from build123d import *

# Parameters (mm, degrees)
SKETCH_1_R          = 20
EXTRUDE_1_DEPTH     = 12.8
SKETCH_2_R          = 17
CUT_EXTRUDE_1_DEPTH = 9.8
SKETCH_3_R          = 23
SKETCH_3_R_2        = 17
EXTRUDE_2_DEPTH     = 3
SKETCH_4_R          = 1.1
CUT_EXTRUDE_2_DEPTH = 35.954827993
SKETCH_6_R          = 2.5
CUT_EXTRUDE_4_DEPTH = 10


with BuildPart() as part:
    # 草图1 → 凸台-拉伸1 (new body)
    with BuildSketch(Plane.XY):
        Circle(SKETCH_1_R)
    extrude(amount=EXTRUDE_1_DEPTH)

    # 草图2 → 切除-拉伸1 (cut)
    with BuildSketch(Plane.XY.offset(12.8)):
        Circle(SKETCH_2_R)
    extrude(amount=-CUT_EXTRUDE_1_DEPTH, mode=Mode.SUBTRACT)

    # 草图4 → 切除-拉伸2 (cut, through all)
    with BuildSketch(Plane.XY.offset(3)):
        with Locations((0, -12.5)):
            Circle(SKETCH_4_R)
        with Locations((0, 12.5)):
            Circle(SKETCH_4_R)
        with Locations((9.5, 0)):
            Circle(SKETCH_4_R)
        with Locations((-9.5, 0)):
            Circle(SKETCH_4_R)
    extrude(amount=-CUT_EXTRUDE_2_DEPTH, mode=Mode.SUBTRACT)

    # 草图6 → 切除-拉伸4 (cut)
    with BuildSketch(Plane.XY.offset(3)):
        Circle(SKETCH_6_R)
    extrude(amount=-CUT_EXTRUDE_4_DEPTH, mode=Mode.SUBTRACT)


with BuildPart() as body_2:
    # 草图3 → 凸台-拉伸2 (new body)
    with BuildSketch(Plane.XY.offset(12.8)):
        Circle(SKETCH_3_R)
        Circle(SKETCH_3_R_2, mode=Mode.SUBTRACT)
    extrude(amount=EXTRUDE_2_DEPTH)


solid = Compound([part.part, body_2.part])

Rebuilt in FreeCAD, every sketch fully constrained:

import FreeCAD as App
import Part
import Sketcher

V = App.Vector
Q = App.Units.Quantity

doc = App.newDocument("Part")
body = doc.addObject("PartDesign::Body", "Body")

# Sketch on XY plane
sketch1 = body.newObject("Sketcher::SketchObject", "Sketch")
sketch1.AttachmentSupport = (doc.getObject("XY_Plane"), [""])
sketch1.MapMode = "FlatFace"
sketch1.addGeometry(Part.Circle(V(0, 0, 0), V(0, 0, 1), 20), False)
sketch1.addConstraint(Sketcher.Constraint("Coincident", 0, 3, -1, 1))
sketch1.addConstraint(Sketcher.Constraint("Diameter", 0, Q("40 mm")))
pad1 = body.newObject("PartDesign::Pad", "Pad")
pad1.Profile = sketch1
pad1.Length = 12.8

# Sketch on XY plane
sketch2 = body.newObject("Sketcher::SketchObject", "Sketch001")
sketch2.AttachmentSupport = (doc.getObject("XY_Plane"), [""])
sketch2.MapMode = "FlatFace"
sketch2.AttachmentOffset = App.Placement(V(0, 0, 12.8), App.Rotation())
sketch2.addGeometry(Part.Circle(V(0, 0, 0), V(0, 0, 1), 17), False)
sketch2.addConstraint(Sketcher.Constraint("Coincident", 0, 3, -1, 1))
sketch2.addConstraint(Sketcher.Constraint("Diameter", 0, Q("34 mm")))
pocket1 = body.newObject("PartDesign::Pocket", "Pocket")
pocket1.Profile = sketch2
pocket1.Length = 9.8

# Sketch on XY plane
sketch3 = body.newObject("Sketcher::SketchObject", "Sketch002")
sketch3.AttachmentSupport = (doc.getObject("XY_Plane"), [""])
sketch3.MapMode = "FlatFace"
sketch3.AttachmentOffset = App.Placement(V(0, 0, 3), App.Rotation())
sketch3.addGeometry(Part.Circle(V(0, -12.5, 0), V(0, 0, 1), 1.1), False)
sketch3.addGeometry(Part.Circle(V(0, 12.5, 0), V(0, 0, 1), 1.1), False)
sketch3.addGeometry(Part.Circle(V(9.5, 0, 0), V(0, 0, 1), 1.1), False)
sketch3.addGeometry(Part.Circle(V(-9.5, 0, 0), V(0, 0, 1), 1.1), False)
sketch3.addConstraint(Sketcher.Constraint("Equal", 0, 1))
sketch3.addConstraint(Sketcher.Constraint("Equal", 1, 2))
sketch3.addConstraint(Sketcher.Constraint("Equal", 2, 3))
sketch3.addConstraint(Sketcher.Constraint("Symmetric", 0, 3, 1, 3, -1, 1))
sketch3.addConstraint(Sketcher.Constraint("Symmetric", 2, 3, 3, 3, -1, 1))
sketch3.addConstraint(Sketcher.Constraint("PointOnObject", 0, 3, -2))
sketch3.addConstraint(Sketcher.Constraint("PointOnObject", 2, 3, -1))
sketch3.addConstraint(Sketcher.Constraint("Diameter", 0, Q("2.2 mm")))
sketch3.addConstraint(Sketcher.Constraint("DistanceY", 0, 3, 1, 3, Q("25 mm")))
sketch3.addConstraint(Sketcher.Constraint("DistanceX", 3, 3, 2, 3, Q("19 mm")))
pocket2 = body.newObject("PartDesign::Pocket", "Pocket001")
pocket2.Profile = sketch3
pocket2.Type = "ThroughAll"

# Sketch on XY plane
sketch4 = body.newObject("Sketcher::SketchObject", "Sketch003")
sketch4.AttachmentSupport = (doc.getObject("XY_Plane"), [""])
sketch4.MapMode = "FlatFace"
sketch4.AttachmentOffset = App.Placement(V(0, 0, 3), App.Rotation())
sketch4.addGeometry(Part.Circle(V(0, 0, 0), V(0, 0, 1), 2.5), False)
sketch4.addConstraint(Sketcher.Constraint("Coincident", 0, 3, -1, 1))
sketch4.addConstraint(Sketcher.Constraint("Diameter", 0, Q("5 mm")))
pocket3 = body.newObject("PartDesign::Pocket", "Pocket002")
pocket3.Profile = sketch4
pocket3.Length = 10
body2 = doc.addObject("PartDesign::Body", "Body001")

# Sketch on XY plane
sketch5 = body2.newObject("Sketcher::SketchObject", "Sketch004")
sketch5.AttachmentSupport = (doc.getObject("XY_Plane001"), [""])
sketch5.MapMode = "FlatFace"
sketch5.AttachmentOffset = App.Placement(V(0, 0, 12.8), App.Rotation())
sketch5.addGeometry(Part.Circle(V(0, 0, 0), V(0, 0, 1), 23), False)
sketch5.addGeometry(Part.Circle(V(0, 0, 0), V(0, 0, 1), 17), False)
sketch5.addConstraint(Sketcher.Constraint("Coincident", 0, 3, -1, 1))
sketch5.addConstraint(Sketcher.Constraint("Coincident", 1, 3, -1, 1))
sketch5.addConstraint(Sketcher.Constraint("Diameter", 0, Q("46 mm")))
sketch5.addConstraint(Sketcher.Constraint("Diameter", 1, Q("34 mm")))
pad2 = body2.newObject("PartDesign::Pad", "Pad001")
pad2.Profile = sketch5
pad2.Length = 3

doc.recompute()
